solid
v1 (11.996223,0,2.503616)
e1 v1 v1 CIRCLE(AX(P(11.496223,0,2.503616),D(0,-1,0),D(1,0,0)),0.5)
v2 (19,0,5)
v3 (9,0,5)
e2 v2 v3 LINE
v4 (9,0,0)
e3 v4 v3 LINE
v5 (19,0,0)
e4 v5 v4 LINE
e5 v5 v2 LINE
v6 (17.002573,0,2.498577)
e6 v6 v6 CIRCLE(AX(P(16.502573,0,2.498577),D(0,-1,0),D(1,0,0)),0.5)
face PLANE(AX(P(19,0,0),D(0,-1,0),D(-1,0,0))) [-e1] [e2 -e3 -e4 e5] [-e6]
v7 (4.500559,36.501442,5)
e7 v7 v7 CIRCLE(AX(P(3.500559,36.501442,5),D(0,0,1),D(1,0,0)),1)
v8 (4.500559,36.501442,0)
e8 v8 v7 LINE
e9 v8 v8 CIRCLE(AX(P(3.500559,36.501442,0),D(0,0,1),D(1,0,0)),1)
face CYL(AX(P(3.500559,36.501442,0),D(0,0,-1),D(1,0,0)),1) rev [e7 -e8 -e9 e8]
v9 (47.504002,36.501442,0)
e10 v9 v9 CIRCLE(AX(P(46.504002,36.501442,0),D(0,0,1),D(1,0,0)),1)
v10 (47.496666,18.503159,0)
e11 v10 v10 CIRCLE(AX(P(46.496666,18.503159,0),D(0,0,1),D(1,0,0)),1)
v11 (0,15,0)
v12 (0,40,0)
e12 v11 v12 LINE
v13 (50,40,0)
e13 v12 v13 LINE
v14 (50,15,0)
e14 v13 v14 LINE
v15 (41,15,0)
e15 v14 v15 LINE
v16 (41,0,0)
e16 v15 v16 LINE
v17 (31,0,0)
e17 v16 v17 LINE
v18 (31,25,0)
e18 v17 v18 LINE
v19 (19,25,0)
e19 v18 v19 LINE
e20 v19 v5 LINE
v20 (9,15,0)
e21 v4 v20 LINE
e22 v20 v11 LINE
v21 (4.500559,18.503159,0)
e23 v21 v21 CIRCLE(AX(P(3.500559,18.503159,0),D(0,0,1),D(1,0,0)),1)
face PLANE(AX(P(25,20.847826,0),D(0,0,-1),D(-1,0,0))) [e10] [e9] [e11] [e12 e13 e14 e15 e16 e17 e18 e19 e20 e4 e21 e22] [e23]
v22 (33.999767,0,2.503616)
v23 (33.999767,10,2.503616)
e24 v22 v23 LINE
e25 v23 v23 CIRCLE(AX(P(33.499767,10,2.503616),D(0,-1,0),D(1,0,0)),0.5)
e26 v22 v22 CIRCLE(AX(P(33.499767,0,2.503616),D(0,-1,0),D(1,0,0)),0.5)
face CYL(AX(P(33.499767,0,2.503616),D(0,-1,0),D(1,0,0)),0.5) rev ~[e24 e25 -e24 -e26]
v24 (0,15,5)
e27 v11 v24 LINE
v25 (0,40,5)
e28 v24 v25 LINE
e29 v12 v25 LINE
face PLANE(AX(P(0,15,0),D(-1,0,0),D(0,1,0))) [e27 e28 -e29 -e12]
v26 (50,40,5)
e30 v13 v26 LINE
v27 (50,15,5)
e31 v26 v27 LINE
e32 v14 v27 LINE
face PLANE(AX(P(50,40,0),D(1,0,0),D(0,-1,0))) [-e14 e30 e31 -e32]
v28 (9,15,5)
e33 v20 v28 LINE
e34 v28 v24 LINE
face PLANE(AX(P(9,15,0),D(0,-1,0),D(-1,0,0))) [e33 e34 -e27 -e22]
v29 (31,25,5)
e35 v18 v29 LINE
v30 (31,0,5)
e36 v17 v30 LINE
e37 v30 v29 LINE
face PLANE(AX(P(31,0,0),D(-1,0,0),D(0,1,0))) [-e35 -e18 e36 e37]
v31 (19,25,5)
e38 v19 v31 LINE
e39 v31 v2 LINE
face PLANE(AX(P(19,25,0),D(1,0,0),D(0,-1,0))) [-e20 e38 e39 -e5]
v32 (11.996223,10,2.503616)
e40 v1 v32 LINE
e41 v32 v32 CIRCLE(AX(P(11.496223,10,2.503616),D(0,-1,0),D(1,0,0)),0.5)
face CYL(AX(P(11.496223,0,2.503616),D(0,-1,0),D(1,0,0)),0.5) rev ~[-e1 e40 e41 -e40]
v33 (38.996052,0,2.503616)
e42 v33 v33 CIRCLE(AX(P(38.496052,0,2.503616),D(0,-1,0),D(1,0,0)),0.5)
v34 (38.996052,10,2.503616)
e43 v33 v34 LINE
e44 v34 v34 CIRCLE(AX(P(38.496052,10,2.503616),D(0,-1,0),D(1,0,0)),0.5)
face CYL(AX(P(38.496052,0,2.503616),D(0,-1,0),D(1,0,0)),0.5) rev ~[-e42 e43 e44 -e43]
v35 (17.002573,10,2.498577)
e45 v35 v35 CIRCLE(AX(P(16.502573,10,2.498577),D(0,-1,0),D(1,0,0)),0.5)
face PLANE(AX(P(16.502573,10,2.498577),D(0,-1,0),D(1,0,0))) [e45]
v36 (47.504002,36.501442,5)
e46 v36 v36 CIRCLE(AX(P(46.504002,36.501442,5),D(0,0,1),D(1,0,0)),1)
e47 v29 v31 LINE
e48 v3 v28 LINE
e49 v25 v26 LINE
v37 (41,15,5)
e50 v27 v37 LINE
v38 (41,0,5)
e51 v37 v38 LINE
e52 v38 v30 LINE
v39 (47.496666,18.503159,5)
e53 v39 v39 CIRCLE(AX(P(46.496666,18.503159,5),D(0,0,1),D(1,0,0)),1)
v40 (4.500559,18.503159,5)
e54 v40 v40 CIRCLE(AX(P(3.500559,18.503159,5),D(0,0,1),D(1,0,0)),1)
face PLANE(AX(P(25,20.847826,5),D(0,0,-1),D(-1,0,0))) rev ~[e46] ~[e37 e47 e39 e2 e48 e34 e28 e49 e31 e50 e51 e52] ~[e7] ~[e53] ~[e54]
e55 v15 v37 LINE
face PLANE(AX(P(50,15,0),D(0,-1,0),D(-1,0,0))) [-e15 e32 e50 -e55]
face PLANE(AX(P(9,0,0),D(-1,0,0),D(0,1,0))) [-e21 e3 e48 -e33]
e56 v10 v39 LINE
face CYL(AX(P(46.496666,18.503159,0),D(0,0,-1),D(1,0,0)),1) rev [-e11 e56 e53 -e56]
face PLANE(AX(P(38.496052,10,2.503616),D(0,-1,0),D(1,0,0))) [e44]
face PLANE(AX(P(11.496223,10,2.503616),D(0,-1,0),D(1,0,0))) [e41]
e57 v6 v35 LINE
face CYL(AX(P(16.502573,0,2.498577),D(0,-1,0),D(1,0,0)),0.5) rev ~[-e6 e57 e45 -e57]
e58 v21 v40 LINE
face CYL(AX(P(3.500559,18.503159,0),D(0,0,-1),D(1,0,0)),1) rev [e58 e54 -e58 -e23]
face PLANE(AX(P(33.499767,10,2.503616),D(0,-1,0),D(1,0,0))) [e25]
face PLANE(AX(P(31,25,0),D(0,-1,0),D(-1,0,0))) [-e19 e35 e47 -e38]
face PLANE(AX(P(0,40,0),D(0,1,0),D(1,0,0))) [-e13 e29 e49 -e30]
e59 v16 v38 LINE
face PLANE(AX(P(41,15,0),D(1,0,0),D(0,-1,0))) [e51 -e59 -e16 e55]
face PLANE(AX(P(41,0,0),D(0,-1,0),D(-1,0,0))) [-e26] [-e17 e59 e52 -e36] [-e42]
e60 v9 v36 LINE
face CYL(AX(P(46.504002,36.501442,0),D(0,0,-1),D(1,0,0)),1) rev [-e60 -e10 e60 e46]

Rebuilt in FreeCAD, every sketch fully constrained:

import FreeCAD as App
import Part
import Sketcher
from FreeCAD import Vector

doc = App.newDocument("Part")
body = doc.addObject("PartDesign::Body", "Body")

# Sketch on XY plane
sketch1 = body.newObject("Sketcher::SketchObject", "Sketch")
sketch1.AttachmentSupport = (doc.getObject("XY_Plane"), [""])
sketch1.MapMode = "FlatFace"
sketch1.addGeometry([
    Part.LineSegment(Vector(9, 15, 0), Vector(9, 0, 0)),  # 0
    Part.LineSegment(Vector(9, 0, 0), Vector(19, 0, 0)),  # 1
    Part.LineSegment(Vector(19, 0, 0), Vector(19, 25, 0)),  # 2
    Part.LineSegment(Vector(19, 25, 0), Vector(31, 25, 0)),  # 3
    Part.LineSegment(Vector(31, 25, 0), Vector(31, 0, 0)),  # 4
    Part.LineSegment(Vector(31, 0, 0), Vector(41, 0, 0)),  # 5
    Part.LineSegment(Vector(41, 0, 0), Vector(41, 15, 0)),  # 6
    Part.LineSegment(Vector(41, 15, 0), Vector(50, 15, 0)),  # 7
    Part.LineSegment(Vector(50, 15, 0), Vector(50, 40, 0)),  # 8
    Part.LineSegment(Vector(50, 40, 0), Vector(0, 40, 0)),  # 9
    Part.LineSegment(Vector(0, 40, 0), Vector(0, 15, 0)),  # 10
    Part.LineSegment(Vector(0, 15, 0), Vector(9, 15, 0)),  # 11
    Part.Circle(Vector(46.496666, 18.503159, 0), Vector(0, 0, 1), 1),  # 12
    Part.Circle(Vector(3.500559, 18.503159, 0), Vector(0, 0, 1), 1),  # 13
    Part.Circle(Vector(46.504002, 36.501442, 0), Vector(0, 0, 1), 1),  # 14
    Part.Circle(Vector(3.500559, 36.501442, 0), Vector(0, 0, 1), 1),  # 15
], False)
sketch1.addConstraint([
    Sketcher.Constraint("Coincident", 0, 2, 1, 1),
    Sketcher.Constraint("Coincident", 1, 2, 2, 1),
    Sketcher.Constraint("Coincident", 2, 2, 3, 1),
    Sketcher.Constraint("Coincident", 3, 2, 4, 1),
    Sketcher.Constraint("Coincident", 4, 2, 5, 1),
    Sketcher.Constraint("Coincident", 5, 2, 6, 1),
    Sketcher.Constraint("Coincident", 6, 2, 7, 1),
    Sketcher.Constraint("Coincident", 7, 2, 8, 1),
    Sketcher.Constraint("Coincident", 8, 2, 9, 1),
    Sketcher.Constraint("Coincident", 9, 2, 10, 1),
    Sketcher.Constraint("Coincident", 10, 2, 11, 1),
    Sketcher.Constraint("Coincident", 11, 2, 0, 1),
    Sketcher.Constraint("Vertical", 0),
    Sketcher.Constraint("Horizontal", 1),
    Sketcher.Constraint("Vertical", 2),
    Sketcher.Constraint("Horizontal", 3),
    Sketcher.Constraint("Vertical", 4),
    Sketcher.Constraint("Horizontal", 5),
    Sketcher.Constraint("Vertical", 6),
    Sketcher.Constraint("Horizontal", 7),
    Sketcher.Constraint("Vertical", 8),
    Sketcher.Constraint("Horizontal", 9),
    Sketcher.Constraint("Vertical", 10),
    Sketcher.Constraint("Horizontal", 11),
    Sketcher.Constraint("Equal", 12, 13),
    Sketcher.Constraint("Equal", 13, 14),
    Sketcher.Constraint("Equal", 14, 15),
    Sketcher.Constraint("PointOnObject", 0, 2, -1),
    Sketcher.Constraint("PointOnObject", 4, 2, -1),
    Sketcher.Constraint("PointOnObject", 9, 2, -2),
    Sketcher.Constraint("Horizontal", 12, 3, 13, 3),
    Sketcher.Constraint("Horizontal", 14, 3, 15, 3),
    Sketcher.Constraint("Horizontal", 7, 2, 10, 2),
    Sketcher.Constraint("Vertical", 13, 3, 15, 3),
    Sketcher.Constraint("Equal", 1, 5),
    Sketcher.Constraint("Equal", 7, 11),
    Sketcher.Constraint("Equal", 4, 8),
    Sketcher.Constraint("Diameter", 12, 2.0),
    Sketcher.Constraint("DistanceX", 1, 1, 1, 2, 10.0),
    Sketcher.Constraint("DistanceX", 3, 1, 3, 2, 12.0),
    Sketcher.Constraint("DistanceX", 7, 1, 7, 2, 9.0),
    Sketcher.Constraint("DistanceY", 0, 2, 0, 1, 15.0),
    Sketcher.Constraint("DistanceY", 2, 1, 2, 2, 25.0),
    Sketcher.Constraint("DistanceX", 1, 2, 14, 3, 27.504002),
    Sketcher.Constraint("DistanceY", -1, 1, 12, 3, 18.503159),
    Sketcher.Constraint("DistanceX", -1, 1, 13, 3, 3.500559),
    Sketcher.Constraint("DistanceY", -1, 1, 14, 3, 36.501442),
    Sketcher.Constraint("DistanceX", -1, 1, 12, 3, 46.496666),
])
pad1 = body.newObject("PartDesign::Pad", "Pad")
pad1.Profile = sketch1
pad1.Length = 5

# Sketch on XZ plane
sketch2 = body.newObject("Sketcher::SketchObject", "Sketch001")
sketch2.AttachmentSupport = (doc.getObject("XZ_Plane"), [""])
sketch2.MapMode = "FlatFace"
sketch2.addGeometry([
    Part.Circle(Vector(38.496052, 2.503616, 0), Vector(0, 0, 1), 0.5),
    Part.Circle(Vector(33.499767, 2.503616, 0), Vector(0, 0, 1), 0.5),
    Part.Circle(Vector(16.502573, 2.498577, 0), Vector(0, 0, 1), 0.5),
    Part.Circle(Vector(11.496223, 2.503616, 0), Vector(0, 0, 1), 0.5),
], False)
sketch2.addConstraint([
    Sketcher.Constraint("Equal", 0, 1),
    Sketcher.Constraint("Equal", 1, 2),
    Sketcher.Constraint("Equal", 2, 3),
    Sketcher.Constraint("Horizontal", 0, 3, 1, 3),
    Sketcher.Constraint("Horizontal", 1, 3, 3, 3),
    Sketcher.Constraint("Diameter", 0, 1.0),
    Sketcher.Constraint("DistanceY", 2, 3, 1, 3, 0.005039),
    Sketcher.Constraint("DistanceX", 2, 3, 0, 3, 21.993479),
    Sketcher.Constraint("DistanceX", 3, 3, 2, 3, 5.00635),
    Sketcher.Constraint("DistanceX", -1, 1, 0, 3, 38.496052),
    Sketcher.Constraint("DistanceY", -1, 1, 0, 3, 2.503616),
    Sketcher.Constraint("DistanceX", -1, 1, 1, 3, 33.499767),
])
pocket1 = body.newObject("PartDesign::Pocket", "Pocket")
pocket1.Profile = sketch2
pocket1.Length = 10

doc.recompute()
